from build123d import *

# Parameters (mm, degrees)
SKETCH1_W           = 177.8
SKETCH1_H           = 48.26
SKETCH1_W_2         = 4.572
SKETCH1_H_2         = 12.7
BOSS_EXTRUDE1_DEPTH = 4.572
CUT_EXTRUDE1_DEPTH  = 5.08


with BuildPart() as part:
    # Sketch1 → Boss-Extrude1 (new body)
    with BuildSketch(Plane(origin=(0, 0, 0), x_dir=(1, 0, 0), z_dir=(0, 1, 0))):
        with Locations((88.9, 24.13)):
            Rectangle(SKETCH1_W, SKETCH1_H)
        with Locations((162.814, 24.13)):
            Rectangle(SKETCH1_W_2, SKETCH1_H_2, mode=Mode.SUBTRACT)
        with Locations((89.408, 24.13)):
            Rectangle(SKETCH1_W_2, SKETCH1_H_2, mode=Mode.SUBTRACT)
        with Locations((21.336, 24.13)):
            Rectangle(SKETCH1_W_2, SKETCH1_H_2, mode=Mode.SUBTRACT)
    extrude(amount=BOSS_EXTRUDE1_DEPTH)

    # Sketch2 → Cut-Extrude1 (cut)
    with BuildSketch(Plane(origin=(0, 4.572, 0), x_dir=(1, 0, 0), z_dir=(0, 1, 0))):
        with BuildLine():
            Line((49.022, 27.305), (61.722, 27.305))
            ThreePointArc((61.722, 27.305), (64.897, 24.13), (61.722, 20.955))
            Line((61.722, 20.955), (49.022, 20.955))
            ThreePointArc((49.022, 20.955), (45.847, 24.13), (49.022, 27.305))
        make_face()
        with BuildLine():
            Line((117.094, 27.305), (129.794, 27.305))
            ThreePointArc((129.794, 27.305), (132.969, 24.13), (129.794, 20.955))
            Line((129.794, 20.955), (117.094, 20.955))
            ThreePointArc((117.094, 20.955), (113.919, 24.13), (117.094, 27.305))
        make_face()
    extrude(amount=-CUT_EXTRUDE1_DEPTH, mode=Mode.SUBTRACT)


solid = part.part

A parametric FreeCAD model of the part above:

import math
import FreeCAD as App
import Part
import Sketcher
Q = App.Units.Quantity

doc = App.newDocument("Part")
params = doc.addObject("Spreadsheet::Sheet", "Params")
for row, (alias, value) in enumerate([
    ("sketch1_width", "7 in"),
    ("sketch1_height", "1.9 in"),
    ("sketch1_height2", "0.5 in"),
    ("sketch1_width2", "0.18 in"),
    ("pad1_length", "0.18 in"),
    ("sketch2_width", "0.5 in"),
    ("sketch2_radius", "0.125 in"),
    ("pocket1_length", "0.2 in"),
], start=1):
    params.set(f"A{row}", alias)
    params.set(f"B{row}", "=" + value)
    params.setAlias(f"B{row}", alias)

body = doc.addObject("PartDesign::Body", "Body")

# Sketch on XZ plane
sketch1 = body.newObject("Sketcher::SketchObject", "Sketch")
sketch1.AttachmentSupport = (doc.getObject("XZ_Plane"), [""])
sketch1.MapMode = "FlatFace"
sketch1.addGeometry(Part.LineSegment(App.Vector(0, -48.26, 0), App.Vector(0, 0, 0)), False)
sketch1.addGeometry(Part.LineSegment(App.Vector(0, 0, 0), App.Vector(177.8, 0, 0)), False)
sketch1.addGeometry(Part.LineSegment(App.Vector(177.8, 0, 0), App.Vector(177.8, -48.26, 0)), False)
sketch1.addGeometry(Part.LineSegment(App.Vector(177.8, -48.26, 0), App.Vector(0, -48.26, 0)), False)
sketch1.addGeometry(Part.LineSegment(App.Vector(23.622, -17.78, 0), App.Vector(19.05, -17.78, 0)), False)
sketch1.addGeometry(Part.LineSegment(App.Vector(19.05, -17.78, 0), App.Vector(19.05, -30.48, 0)), False)
sketch1.addGeometry(Part.LineSegment(App.Vector(19.05, -30.48, 0), App.Vector(23.622, -30.48, 0)), False)
sketch1.addGeometry(Part.LineSegment(App.Vector(23.622, -30.48, 0), App.Vector(23.622, -17.78, 0)), False)
sketch1.addGeometry(Part.LineSegment(App.Vector(91.694, -17.78, 0), App.Vector(87.122, -17.78, 0)), False)
sketch1.addGeometry(Part.LineSegment(App.Vector(87.122, -17.78, 0), App.Vector(87.122, -30.48, 0)), False)
sketch1.addGeometry(Part.LineSegment(App.Vector(87.122, -30.48, 0), App.Vector(91.694, -30.48, 0)), False)
sketch1.addGeometry(Part.LineSegment(App.Vector(91.694, -30.48, 0), App.Vector(91.694, -17.78, 0)), False)
sketch1.addGeometry(Part.LineSegment(App.Vector(165.1, -17.78, 0), App.Vector(160.528, -17.78, 0)), False)
sketch1.addGeometry(Part.LineSegment(App.Vector(160.528, -17.78, 0), App.Vector(160.528, -30.48, 0)), False)
sketch1.addGeometry(Part.LineSegment(App.Vector(160.528, -30.48, 0), App.Vector(165.1, -30.48, 0)), False)
sketch1.addGeometry(Part.LineSegment(App.Vector(165.1, -30.48, 0), App.Vector(165.1, -17.78, 0)), False)
sketch1.addConstraint(Sketcher.Constraint("Coincident", 0, 2, 1, 1))
sketch1.addConstraint(Sketcher.Constraint("Coincident", 1, 2, 2, 1))
sketch1.addConstraint(Sketcher.Constraint("Coincident", 2, 2, 3, 1))
sketch1.addConstraint(Sketcher.Constraint("Coincident", 3, 2, 0, 1))
sketch1.addConstraint(Sketcher.Constraint("Coincident", 4, 2, 5, 1))
sketch1.addConstraint(Sketcher.Constraint("Coincident", 5, 2, 6, 1))
sketch1.addConstraint(Sketcher.Constraint("Coincident", 6, 2, 7, 1))
sketch1.addConstraint(Sketcher.Constraint("Coincident", 7, 2, 4, 1))
sketch1.addConstraint(Sketcher.Constraint("Coincident", 8, 2, 9, 1))
sketch1.addConstraint(Sketcher.Constraint("Coincident", 9, 2, 10, 1))
sketch1.addConstraint(Sketcher.Constraint("Coincident", 10, 2, 11, 1))
sketch1.addConstraint(Sketcher.Constraint("Coincident", 11, 2, 8, 1))
sketch1.addConstraint(Sketcher.Constraint("Coincident", 12, 2, 13, 1))
sketch1.addConstraint(Sketcher.Constraint("Coincident", 13, 2, 14, 1))
sketch1.addConstraint(Sketcher.Constraint("Coincident", 14, 2, 15, 1))
sketch1.addConstraint(Sketcher.Constraint("Coincident", 15, 2, 12, 1))
sketch1.addConstraint(Sketcher.Constraint("Vertical", 0))
sketch1.addConstraint(Sketcher.Constraint("Horizontal", 1))
sketch1.addConstraint(Sketcher.Constraint("Vertical", 2))
sketch1.addConstraint(Sketcher.Constraint("Horizontal", 3))
sketch1.addConstraint(Sketcher.Constraint("Horizontal", 4))
sketch1.addConstraint(Sketcher.Constraint("Vertical", 5))
sketch1.addConstraint(Sketcher.Constraint("Horizontal", 6))
sketch1.addConstraint(Sketcher.Constraint("Vertical", 7))
sketch1.addConstraint(Sketcher.Constraint("Horizontal", 8))
sketch1.addConstraint(Sketcher.Constraint("Vertical", 9))
sketch1.addConstraint(Sketcher.Constraint("Horizontal", 10))
sketch1.addConstraint(Sketcher.Constraint("Vertical", 11))
sketch1.addConstraint(Sketcher.Constraint("Horizontal", 12))
sketch1.addConstraint(Sketcher.Constraint("Vertical", 13))
sketch1.addConstraint(Sketcher.Constraint("Horizontal", 14))
sketch1.addConstraint(Sketcher.Constraint("Vertical", 15))
sketch1.addConstraint(Sketcher.Constraint("Coincident", 0, 2, -1, 1))
sketch1.addConstraint(Sketcher.Constraint("Horizontal", 7, 2, 8, 2))
sketch1.addConstraint(Sketcher.Constraint("Horizontal", 6, 2, 9, 2))
sketch1.addConstraint(Sketcher.Constraint("Horizontal", 11, 2, 12, 2))
sketch1.addConstraint(Sketcher.Constraint("Horizontal", 10, 2, 13, 2))
sketch1.addConstraint(Sketcher.Constraint("Equal", 6, 8))
sketch1.addConstraint(Sketcher.Constraint("Equal", 10, 12))
sketch1.addConstraint(Sketcher.Constraint("DistanceX", 1, 1, 1, 2, Q("7 in")))
sketch1.addConstraint(Sketcher.Constraint("DistanceY", 0, 1, 0, 2, Q("1.9 in")))
sketch1.addConstraint(Sketcher.Constraint("DistanceY", 5, 2, 5, 1, Q("0.5 in")))
sketch1.addConstraint(Sketcher.Constraint("DistanceX", 4, 2, 4, 1, Q("0.18 in")))
sketch1.addConstraint(Sketcher.Constraint("DistanceY", 4, 2, -1, 1, Q("0.7 in")))
sketch1.addConstraint(Sketcher.Constraint("DistanceX", -1, 1, 14, 2, Q("6.5 in")))
sketch1.addConstraint(Sketcher.Constraint("DistanceX", 7, 2, 8, 2, Q("2.5 in")))
sketch1.addConstraint(Sketcher.Constraint("DistanceX", -1, 1, 4, 2, Q("0.75 in")))
sketch1.setExpression("Constraints[39]", "Params.sketch1_width")
sketch1.setExpression("Constraints[40]", "Params.sketch1_height")
sketch1.setExpression("Constraints[41]", "Params.sketch1_height2")
sketch1.setExpression("Constraints[42]", "Params.sketch1_width2")
pad1 = body.newObject("PartDesign::Pad", "Pad")
pad1.Profile = sketch1
pad1.setExpression("Length", "Params.pad1_length")
pad1.Reversed = True

# Sketch on XZ plane
sketch2 = body.newObject("Sketcher::SketchObject", "Sketch001")
sketch2.AttachmentSupport = (doc.getObject("XZ_Plane"), [""])
sketch2.MapMode = "FlatFace"
sketch2.AttachmentOffset = App.Placement(App.Vector(0, 0, -0.18 * 25.4), App.Rotation())
sketch2.addGeometry(Part.LineSegment(App.Vector(61.722, -27.305, 0), App.Vector(49.022, -27.305, 0)), False)
sketch2.addGeometry(Part.ArcOfCircle(Part.Circle(App.Vector(49.022, -24.13, 0), App.Vector(0, 0, 1), 3.175), math.radians(90), math.radians(270)), False)
sketch2.addGeometry(Part.LineSegment(App.Vector(49.022, -20.955, 0), App.Vector(61.722, -20.955, 0)), False)
sketch2.addGeometry(Part.ArcOfCircle(Part.Circle(App.Vector(61.722, -24.13, 0), App.Vector(0, 0, 1), 3.175), math.radians(-90), math.radians(90)), False)
sketch2.addGeometry(Part.LineSegment(App.Vector(129.794, -27.305, 0), App.Vector(117.094, -27.305, 0)), False)
sketch2.addGeometry(Part.ArcOfCircle(Part.Circle(App.Vector(117.094, -24.13, 0), App.Vector(0, 0, 1), 3.175), math.radians(90), math.radians(270)), False)
sketch2.addGeometry(Part.LineSegment(App.Vector(117.094, -20.955, 0), App.Vector(129.794, -20.955, 0)), False)
sketch2.addGeometry(Part.ArcOfCircle(Part.Circle(App.Vector(129.794, -24.13, 0), App.Vector(0, 0, 1), 3.175), math.radians(-90), math.radians(90)), False)
sketch2.addConstraint(Sketcher.Constraint("Tangent", 0, 2, 1, 2))
sketch2.addConstraint(Sketcher.Constraint("Tangent", 1, 1, 2, 1))
sketch2.addConstraint(Sketcher.Constraint("Tangent", 2, 2, 3, 2))
sketch2.addConstraint(Sketcher.Constraint("Tangent", 3, 1, 0, 1))
sketch2.addConstraint(Sketcher.Constraint("Tangent", 4, 2, 5, 2))
sketch2.addConstraint(Sketcher.Constraint("Tangent", 5, 1, 6, 1))
sketch2.addConstraint(Sketcher.Constraint("Tangent", 6, 2, 7, 2))
sketch2.addConstraint(Sketcher.Constraint("Tangent", 7, 1, 4, 1))
sketch2.addConstraint(Sketcher.Constraint("Horizontal", 0))
sketch2.addConstraint(Sketcher.Constraint("Horizontal", 2))
sketch2.addConstraint(Sketcher.Constraint("Horizontal", 4))
sketch2.addConstraint(Sketcher.Constraint("Horizontal", 6))
sketch2.addConstraint(Sketcher.Constraint("Equal", 3, 5))
sketch2.addConstraint(Sketcher.Constraint("Horizontal", 3, 3, 5, 3))
sketch2.addConstraint(Sketcher.Constraint("Equal", 2, 4))
sketch2.addConstraint(Sketcher.Constraint("DistanceX", 0, 2, 0, 1, Q("0.5 in")))
sketch2.addConstraint(Sketcher.Constraint("Radius", 1, Q("0.125 in")))
sketch2.addConstraint(Sketcher.Constraint("DistanceX", -1, 1, 1, 3, Q("1.93 in")))
sketch2.addConstraint(Sketcher.Constraint("DistanceY", 1, 3, -1, 1, Q("0.95 in")))
sketch2.addConstraint(Sketcher.Constraint("DistanceX", -1, 1, 5, 3, Q("4.61 in")))
sketch2.setExpression("Constraints[15]", "Params.sketch2_width")
sketch2.setExpression("Constraints[16]", "Params.sketch2_radius")
pocket1 = body.newObject("PartDesign::Pocket", "Pocket")
pocket1.Profile = sketch2
pocket1.setExpression("Length", "Params.pocket1_length")
pocket1.Reversed = True

doc.recompute()
